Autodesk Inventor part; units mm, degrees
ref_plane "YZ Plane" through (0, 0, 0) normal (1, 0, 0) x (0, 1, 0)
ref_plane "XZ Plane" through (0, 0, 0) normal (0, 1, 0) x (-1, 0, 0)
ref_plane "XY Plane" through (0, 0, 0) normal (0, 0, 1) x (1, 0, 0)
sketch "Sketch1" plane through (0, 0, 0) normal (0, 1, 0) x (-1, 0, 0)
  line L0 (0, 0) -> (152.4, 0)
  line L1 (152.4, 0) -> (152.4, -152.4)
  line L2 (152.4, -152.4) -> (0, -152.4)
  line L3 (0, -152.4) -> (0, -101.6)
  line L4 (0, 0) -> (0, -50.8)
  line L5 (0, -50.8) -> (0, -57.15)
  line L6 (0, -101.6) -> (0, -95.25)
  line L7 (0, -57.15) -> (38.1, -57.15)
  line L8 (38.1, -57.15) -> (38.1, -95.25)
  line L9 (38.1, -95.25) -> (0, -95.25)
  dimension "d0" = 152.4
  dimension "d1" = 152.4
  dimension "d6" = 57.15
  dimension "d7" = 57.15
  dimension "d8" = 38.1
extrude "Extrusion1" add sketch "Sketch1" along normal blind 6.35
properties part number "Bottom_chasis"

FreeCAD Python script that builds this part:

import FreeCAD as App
import Part
import Sketcher
Q = App.Units.Quantity


def add_polygon(sketch, points):
    """Adds a closed chain of lines whose ends are joined by coincident constraints."""
    first, n = sketch.GeometryCount, len(points)
    for a, b in zip(points, points[1:] + points[:1]):
        sketch.addGeometry(Part.LineSegment(App.Vector(*a, 0), App.Vector(*b, 0)), False)
    for i in range(n):
        sketch.addConstraint(Sketcher.Constraint("Coincident", first + i, 2, first + (i + 1) % n, 1))

doc = App.newDocument("Part")
body = doc.addObject("PartDesign::Body", "Body")

sketch1 = body.newObject("Sketcher::SketchObject", "Sketch")
sketch1.AttachmentSupport = (doc.getObject("XZ_Plane"), [""])
sketch1.MapMode = "FlatFace"
add_polygon(sketch1, [(-152, 0), (0, 0), (0, -57), (-38, -57), (-38, -95), (0, -95), (0, -152), (-152, -152)])
sketch1.addConstraint(Sketcher.Constraint("Horizontal", 0))
sketch1.addConstraint(Sketcher.Constraint("Vertical", 1))
sketch1.addConstraint(Sketcher.Constraint("Horizontal", 2))
sketch1.addConstraint(Sketcher.Constraint("Vertical", 3))
sketch1.addConstraint(Sketcher.Constraint("Horizontal", 4))
sketch1.addConstraint(Sketcher.Constraint("Vertical", 5))
sketch1.addConstraint(Sketcher.Constraint("Horizontal", 6))
sketch1.addConstraint(Sketcher.Constraint("Vertical", 7))
sketch1.addConstraint(Sketcher.Constraint("Coincident", 0, 2, -1, 1))
sketch1.addConstraint(Sketcher.Constraint("PointOnObject", 4, 2, -2))
sketch1.addConstraint(Sketcher.Constraint("Equal", 4, 3))
sketch1.addConstraint(Sketcher.Constraint("Equal", 1, 5))
sketch1.addConstraint(Sketcher.Constraint("Equal", 6, 7))
sketch1.addConstraint(Sketcher.Constraint("DistanceX", 0, 1, 0, 2, Q("6 in")))
sketch1.addConstraint(Sketcher.Constraint("DistanceX", 2, 2, 2, 1, Q("1.5 in")))
pad1 = body.newObject("PartDesign::Pad", "Pad")
pad1.Profile = sketch1
pad1.Length = Q("0.25 in")
pad1.Reversed = True

doc.recompute()
